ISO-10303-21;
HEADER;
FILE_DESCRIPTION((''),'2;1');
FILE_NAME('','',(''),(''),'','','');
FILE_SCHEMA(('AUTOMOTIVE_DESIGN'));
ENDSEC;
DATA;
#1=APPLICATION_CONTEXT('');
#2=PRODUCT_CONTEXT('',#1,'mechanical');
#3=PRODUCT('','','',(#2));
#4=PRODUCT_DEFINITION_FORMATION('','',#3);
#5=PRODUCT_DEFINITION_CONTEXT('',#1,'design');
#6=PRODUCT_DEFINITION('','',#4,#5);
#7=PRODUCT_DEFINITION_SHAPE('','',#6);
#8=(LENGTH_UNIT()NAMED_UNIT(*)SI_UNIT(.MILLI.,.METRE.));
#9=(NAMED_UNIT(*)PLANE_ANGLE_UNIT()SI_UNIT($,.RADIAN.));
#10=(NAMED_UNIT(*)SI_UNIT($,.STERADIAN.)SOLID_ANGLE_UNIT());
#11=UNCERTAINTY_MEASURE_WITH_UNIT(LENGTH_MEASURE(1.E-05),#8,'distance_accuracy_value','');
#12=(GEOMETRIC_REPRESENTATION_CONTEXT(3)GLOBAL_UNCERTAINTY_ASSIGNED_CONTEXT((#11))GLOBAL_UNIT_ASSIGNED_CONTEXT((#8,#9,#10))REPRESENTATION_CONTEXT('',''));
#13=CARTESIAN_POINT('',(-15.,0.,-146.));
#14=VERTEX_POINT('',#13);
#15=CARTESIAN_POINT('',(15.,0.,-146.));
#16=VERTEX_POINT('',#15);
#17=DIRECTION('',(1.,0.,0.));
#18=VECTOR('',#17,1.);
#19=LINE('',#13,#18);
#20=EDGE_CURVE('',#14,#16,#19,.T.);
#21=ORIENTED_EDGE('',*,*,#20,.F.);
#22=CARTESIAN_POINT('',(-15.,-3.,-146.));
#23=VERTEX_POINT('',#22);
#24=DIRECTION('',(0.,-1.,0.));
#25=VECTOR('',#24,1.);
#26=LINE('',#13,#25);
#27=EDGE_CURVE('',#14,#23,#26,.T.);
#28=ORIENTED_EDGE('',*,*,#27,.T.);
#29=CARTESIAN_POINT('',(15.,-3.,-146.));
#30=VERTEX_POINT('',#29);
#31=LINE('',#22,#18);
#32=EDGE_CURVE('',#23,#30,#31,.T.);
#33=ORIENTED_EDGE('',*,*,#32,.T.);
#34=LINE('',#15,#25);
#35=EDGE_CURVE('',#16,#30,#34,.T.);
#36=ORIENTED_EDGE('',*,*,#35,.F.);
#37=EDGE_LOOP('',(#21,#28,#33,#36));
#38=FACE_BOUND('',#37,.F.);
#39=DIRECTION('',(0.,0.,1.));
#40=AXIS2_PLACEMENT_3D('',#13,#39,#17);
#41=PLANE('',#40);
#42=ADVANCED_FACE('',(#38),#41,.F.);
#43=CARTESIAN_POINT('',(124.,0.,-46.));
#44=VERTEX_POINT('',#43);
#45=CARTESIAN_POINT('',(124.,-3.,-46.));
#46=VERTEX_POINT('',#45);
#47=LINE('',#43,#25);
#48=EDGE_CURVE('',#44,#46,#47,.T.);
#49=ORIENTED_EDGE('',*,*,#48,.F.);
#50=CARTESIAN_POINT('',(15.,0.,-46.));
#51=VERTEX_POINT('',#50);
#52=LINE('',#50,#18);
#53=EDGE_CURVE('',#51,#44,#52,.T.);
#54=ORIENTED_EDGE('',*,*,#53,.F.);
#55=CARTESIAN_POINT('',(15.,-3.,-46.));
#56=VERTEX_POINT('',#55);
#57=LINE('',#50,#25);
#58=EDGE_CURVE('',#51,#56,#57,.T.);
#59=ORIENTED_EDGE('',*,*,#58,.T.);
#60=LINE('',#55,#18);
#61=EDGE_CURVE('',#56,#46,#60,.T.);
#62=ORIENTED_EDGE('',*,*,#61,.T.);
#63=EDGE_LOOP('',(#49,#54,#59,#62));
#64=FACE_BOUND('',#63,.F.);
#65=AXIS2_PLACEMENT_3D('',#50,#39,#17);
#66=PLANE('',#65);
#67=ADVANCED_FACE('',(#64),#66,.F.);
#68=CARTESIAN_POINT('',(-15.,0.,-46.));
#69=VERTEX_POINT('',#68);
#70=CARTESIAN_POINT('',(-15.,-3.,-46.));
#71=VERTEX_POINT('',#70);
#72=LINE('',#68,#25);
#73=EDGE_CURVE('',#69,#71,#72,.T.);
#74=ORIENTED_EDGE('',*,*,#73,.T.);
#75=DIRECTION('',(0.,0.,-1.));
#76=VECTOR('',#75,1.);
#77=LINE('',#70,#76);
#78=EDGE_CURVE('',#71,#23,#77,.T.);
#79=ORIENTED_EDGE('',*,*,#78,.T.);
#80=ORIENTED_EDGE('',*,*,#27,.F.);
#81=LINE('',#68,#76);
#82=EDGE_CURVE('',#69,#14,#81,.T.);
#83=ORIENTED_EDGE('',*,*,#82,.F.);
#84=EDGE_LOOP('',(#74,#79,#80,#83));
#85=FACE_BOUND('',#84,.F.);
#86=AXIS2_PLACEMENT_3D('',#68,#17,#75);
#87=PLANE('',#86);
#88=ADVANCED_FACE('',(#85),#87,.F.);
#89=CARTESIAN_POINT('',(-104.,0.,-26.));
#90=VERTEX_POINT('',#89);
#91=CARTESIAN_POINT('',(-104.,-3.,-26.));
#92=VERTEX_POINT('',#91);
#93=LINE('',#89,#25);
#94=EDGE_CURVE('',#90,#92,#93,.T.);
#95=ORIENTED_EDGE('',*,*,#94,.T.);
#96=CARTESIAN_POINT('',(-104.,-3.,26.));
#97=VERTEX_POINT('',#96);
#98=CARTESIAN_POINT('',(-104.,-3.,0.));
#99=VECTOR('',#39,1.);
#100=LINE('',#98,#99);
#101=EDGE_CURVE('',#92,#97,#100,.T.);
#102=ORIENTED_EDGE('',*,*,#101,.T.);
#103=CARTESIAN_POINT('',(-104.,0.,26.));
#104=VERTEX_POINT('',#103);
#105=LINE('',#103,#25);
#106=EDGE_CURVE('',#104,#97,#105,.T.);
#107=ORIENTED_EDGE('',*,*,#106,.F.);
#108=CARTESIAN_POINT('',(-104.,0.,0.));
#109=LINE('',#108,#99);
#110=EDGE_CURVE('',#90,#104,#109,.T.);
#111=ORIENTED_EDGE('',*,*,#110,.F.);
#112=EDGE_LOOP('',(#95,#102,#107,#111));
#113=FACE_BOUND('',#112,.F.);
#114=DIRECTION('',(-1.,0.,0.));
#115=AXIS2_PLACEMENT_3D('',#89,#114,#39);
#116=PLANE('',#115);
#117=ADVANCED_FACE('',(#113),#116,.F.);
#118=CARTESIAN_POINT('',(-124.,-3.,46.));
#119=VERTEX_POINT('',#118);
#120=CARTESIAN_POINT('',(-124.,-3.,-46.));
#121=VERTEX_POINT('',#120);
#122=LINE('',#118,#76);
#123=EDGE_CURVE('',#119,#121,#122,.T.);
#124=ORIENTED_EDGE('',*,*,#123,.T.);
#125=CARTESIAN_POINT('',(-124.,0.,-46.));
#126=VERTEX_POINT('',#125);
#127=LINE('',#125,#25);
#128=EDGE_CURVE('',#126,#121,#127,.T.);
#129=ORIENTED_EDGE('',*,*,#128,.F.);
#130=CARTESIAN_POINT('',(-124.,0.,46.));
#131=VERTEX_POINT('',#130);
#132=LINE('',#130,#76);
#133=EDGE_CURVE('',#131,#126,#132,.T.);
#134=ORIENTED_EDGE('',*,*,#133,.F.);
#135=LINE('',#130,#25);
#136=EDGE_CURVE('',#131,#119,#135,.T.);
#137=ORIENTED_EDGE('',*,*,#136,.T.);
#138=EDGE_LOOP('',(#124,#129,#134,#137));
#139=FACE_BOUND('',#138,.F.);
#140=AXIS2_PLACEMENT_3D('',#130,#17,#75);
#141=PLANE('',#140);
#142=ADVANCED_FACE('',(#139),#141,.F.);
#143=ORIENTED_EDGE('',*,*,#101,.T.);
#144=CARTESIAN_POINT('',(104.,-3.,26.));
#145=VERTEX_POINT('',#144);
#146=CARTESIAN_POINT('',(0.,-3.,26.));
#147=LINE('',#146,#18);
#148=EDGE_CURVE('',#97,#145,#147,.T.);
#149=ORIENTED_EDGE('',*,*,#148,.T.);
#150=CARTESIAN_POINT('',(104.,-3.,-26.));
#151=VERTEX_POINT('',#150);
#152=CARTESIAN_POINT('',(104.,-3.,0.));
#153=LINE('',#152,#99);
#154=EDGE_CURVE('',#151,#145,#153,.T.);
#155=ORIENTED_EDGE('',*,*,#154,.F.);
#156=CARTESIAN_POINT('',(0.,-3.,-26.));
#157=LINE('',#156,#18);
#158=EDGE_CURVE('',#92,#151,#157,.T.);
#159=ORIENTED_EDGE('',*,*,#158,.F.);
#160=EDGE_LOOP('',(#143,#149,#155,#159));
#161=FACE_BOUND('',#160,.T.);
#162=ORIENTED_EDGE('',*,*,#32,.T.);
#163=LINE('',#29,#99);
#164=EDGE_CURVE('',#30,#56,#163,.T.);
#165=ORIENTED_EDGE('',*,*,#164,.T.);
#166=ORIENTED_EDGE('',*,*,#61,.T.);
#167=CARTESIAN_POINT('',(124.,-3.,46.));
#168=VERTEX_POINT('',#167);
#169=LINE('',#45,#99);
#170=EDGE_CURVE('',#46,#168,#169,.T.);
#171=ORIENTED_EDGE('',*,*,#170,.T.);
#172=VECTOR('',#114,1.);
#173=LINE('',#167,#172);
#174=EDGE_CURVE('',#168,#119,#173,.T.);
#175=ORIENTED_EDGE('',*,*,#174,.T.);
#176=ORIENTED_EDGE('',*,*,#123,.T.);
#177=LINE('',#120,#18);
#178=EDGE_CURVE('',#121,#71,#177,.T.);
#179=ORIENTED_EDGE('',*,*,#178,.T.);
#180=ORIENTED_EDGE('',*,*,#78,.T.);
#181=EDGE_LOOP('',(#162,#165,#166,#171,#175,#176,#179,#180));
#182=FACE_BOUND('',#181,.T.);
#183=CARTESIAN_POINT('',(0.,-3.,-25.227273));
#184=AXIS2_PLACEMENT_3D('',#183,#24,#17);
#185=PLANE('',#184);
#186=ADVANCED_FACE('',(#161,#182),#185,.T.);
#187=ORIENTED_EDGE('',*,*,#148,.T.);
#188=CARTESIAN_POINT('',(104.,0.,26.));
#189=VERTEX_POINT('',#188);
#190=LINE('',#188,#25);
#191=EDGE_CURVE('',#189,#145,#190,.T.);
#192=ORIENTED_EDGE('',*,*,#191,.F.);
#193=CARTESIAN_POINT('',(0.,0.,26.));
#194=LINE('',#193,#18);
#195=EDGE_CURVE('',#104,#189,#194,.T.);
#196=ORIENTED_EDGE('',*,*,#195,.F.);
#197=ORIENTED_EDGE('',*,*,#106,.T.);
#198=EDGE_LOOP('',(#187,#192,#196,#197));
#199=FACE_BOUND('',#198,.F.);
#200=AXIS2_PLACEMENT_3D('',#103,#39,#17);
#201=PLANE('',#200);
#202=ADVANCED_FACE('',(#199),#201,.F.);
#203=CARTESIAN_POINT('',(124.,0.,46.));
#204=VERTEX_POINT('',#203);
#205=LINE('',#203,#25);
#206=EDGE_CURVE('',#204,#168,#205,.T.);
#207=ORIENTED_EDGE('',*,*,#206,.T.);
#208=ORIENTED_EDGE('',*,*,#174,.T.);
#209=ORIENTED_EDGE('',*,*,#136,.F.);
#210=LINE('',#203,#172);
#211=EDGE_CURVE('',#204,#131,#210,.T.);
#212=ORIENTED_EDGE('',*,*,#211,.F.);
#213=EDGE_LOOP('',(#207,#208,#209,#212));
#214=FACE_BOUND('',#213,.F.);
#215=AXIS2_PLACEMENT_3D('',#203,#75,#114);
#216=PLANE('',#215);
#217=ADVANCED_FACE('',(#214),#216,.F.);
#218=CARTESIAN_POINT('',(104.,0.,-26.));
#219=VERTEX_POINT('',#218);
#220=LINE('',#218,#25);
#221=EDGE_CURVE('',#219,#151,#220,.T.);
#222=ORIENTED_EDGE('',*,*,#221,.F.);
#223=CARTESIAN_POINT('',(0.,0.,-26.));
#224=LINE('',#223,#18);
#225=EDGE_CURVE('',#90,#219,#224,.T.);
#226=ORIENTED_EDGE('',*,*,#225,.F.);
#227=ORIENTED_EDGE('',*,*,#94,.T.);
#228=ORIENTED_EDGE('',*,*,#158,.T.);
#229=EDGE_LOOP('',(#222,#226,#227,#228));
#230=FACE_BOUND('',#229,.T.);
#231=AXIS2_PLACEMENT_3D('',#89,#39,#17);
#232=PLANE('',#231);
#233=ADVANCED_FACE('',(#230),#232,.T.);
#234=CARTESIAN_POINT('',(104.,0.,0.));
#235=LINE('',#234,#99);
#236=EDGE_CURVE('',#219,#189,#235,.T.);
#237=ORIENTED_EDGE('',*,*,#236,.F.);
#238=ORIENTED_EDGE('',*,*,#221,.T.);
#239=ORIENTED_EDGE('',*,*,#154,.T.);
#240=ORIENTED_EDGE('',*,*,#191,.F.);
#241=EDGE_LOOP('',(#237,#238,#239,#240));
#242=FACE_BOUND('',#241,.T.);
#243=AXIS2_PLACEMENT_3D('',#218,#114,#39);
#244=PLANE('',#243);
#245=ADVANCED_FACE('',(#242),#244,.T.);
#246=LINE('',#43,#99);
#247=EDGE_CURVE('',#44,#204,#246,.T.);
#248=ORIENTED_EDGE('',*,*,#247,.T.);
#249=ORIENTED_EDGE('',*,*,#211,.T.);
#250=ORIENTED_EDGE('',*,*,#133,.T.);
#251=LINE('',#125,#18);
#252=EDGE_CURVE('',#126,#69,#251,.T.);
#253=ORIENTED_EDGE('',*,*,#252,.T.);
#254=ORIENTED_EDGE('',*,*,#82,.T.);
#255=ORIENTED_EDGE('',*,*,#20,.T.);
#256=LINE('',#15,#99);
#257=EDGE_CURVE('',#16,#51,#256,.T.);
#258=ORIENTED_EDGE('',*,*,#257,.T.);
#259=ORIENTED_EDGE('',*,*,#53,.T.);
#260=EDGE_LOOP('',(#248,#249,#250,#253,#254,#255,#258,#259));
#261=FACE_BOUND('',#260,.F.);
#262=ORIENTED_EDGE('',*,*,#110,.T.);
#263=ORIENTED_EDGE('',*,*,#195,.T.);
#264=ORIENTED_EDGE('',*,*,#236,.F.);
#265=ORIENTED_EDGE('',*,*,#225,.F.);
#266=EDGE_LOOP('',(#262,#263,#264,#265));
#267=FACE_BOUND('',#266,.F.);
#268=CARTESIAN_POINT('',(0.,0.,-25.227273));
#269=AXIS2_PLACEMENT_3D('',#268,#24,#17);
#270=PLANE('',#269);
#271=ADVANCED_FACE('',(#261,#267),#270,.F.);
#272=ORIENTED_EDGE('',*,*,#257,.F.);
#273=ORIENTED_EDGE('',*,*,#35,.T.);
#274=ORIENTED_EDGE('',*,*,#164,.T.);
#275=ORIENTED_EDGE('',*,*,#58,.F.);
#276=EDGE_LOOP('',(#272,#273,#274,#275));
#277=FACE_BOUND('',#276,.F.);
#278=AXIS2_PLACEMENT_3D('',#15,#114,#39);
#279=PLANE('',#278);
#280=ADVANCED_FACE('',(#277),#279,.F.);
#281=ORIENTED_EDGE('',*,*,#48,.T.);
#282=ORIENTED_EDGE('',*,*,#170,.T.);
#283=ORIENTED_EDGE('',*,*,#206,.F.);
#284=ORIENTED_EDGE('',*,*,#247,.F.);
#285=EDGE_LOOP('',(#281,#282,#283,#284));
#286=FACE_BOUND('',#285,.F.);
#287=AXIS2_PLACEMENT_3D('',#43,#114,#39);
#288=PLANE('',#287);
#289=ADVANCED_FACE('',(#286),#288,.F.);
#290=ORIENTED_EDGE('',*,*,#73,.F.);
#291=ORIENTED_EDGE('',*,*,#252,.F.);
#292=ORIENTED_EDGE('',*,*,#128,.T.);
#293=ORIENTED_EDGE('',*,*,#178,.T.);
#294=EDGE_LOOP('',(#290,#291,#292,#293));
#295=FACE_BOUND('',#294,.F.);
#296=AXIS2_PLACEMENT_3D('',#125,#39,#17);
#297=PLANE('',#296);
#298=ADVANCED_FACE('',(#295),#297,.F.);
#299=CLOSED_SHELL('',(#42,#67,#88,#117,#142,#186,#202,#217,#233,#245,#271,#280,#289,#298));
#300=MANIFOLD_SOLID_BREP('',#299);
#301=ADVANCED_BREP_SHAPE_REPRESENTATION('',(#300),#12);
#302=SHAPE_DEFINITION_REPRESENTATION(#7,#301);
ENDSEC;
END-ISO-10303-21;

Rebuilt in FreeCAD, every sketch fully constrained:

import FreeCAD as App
import Part
import Sketcher
from FreeCAD import Vector

doc = App.newDocument("Part")
body = doc.addObject("PartDesign::Body", "Body")

# Sketch on XZ plane
sketch1 = body.newObject("Sketcher::SketchObject", "Sketch")
sketch1.AttachmentSupport = (doc.getObject("XZ_Plane"), [""])
sketch1.MapMode = "FlatFace"
sketch1.addGeometry([
    Part.LineSegment(Vector(15, -46, 0), Vector(124, -46, 0)),  # 0
    Part.LineSegment(Vector(124, -46, 0), Vector(124, 46, 0)),  # 1
    Part.LineSegment(Vector(124, 46, 0), Vector(-124, 46, 0)),  # 2
    Part.LineSegment(Vector(-124, 46, 0), Vector(-124, -46, 0)),  # 3
    Part.LineSegment(Vector(-124, -46, 0), Vector(-15, -46, 0)),  # 4
    Part.LineSegment(Vector(-15, -46, 0), Vector(-15, -146, 0)),  # 5
    Part.LineSegment(Vector(-15, -146, 0), Vector(15, -146, 0)),  # 6
    Part.LineSegment(Vector(15, -146, 0), Vector(15, -46, 0)),  # 7
    Part.LineSegment(Vector(104, -26, 0), Vector(-104, -26, 0)),  # 8
    Part.LineSegment(Vector(-104, -26, 0), Vector(-104, 26, 0)),  # 9
    Part.LineSegment(Vector(-104, 26, 0), Vector(104, 26, 0)),  # 10
    Part.LineSegment(Vector(104, 26, 0), Vector(104, -26, 0)),  # 11
], False)
sketch1.addConstraint([
    Sketcher.Constraint("Coincident", 0, 2, 1, 1),
    Sketcher.Constraint("Coincident", 1, 2, 2, 1),
    Sketcher.Constraint("Coincident", 2, 2, 3, 1),
    Sketcher.Constraint("Coincident", 3, 2, 4, 1),
    Sketcher.Constraint("Coincident", 4, 2, 5, 1),
    Sketcher.Constraint("Coincident", 5, 2, 6, 1),
    Sketcher.Constraint("Coincident", 6, 2, 7, 1),
    Sketcher.Constraint("Coincident", 7, 2, 0, 1),
    Sketcher.Constraint("Coincident", 8, 2, 9, 1),
    Sketcher.Constraint("Coincident", 9, 2, 10, 1),
    Sketcher.Constraint("Coincident", 10, 2, 11, 1),
    Sketcher.Constraint("Coincident", 11, 2, 8, 1),
    Sketcher.Constraint("Horizontal", 0),
    Sketcher.Constraint("Vertical", 1),
    Sketcher.Constraint("Horizontal", 2),
    Sketcher.Constraint("Vertical", 3),
    Sketcher.Constraint("Horizontal", 4),
    Sketcher.Constraint("Vertical", 5),
    Sketcher.Constraint("Horizontal", 6),
    Sketcher.Constraint("Vertical", 7),
    Sketcher.Constraint("Horizontal", 8),
    Sketcher.Constraint("Vertical", 9),
    Sketcher.Constraint("Horizontal", 10),
    Sketcher.Constraint("Vertical", 11),
    Sketcher.Constraint("Symmetric", 0, 2, 2, 2, -1, 1),
    Sketcher.Constraint("Symmetric", 8, 2, 10, 2, -1, 1),
    Sketcher.Constraint("Symmetric", 4, 2, 7, 2, -2),
    Sketcher.Constraint("DistanceX", 0, 1, 0, 2, 109.0),
    Sketcher.Constraint("DistanceX", 2, 2, 2, 1, 248.0),
    Sketcher.Constraint("DistanceX", 8, 2, 8, 1, 208.0),
    Sketcher.Constraint("DistanceY", 1, 1, 1, 2, 92.0),
    Sketcher.Constraint("DistanceY", 5, 2, 5, 1, 100.0),
    Sketcher.Constraint("DistanceY", 9, 1, 9, 2, 52.0),
])
pad1 = body.newObject("PartDesign::Pad", "Pad")
pad1.Profile = sketch1
pad1.Length = 3

doc.recompute()
